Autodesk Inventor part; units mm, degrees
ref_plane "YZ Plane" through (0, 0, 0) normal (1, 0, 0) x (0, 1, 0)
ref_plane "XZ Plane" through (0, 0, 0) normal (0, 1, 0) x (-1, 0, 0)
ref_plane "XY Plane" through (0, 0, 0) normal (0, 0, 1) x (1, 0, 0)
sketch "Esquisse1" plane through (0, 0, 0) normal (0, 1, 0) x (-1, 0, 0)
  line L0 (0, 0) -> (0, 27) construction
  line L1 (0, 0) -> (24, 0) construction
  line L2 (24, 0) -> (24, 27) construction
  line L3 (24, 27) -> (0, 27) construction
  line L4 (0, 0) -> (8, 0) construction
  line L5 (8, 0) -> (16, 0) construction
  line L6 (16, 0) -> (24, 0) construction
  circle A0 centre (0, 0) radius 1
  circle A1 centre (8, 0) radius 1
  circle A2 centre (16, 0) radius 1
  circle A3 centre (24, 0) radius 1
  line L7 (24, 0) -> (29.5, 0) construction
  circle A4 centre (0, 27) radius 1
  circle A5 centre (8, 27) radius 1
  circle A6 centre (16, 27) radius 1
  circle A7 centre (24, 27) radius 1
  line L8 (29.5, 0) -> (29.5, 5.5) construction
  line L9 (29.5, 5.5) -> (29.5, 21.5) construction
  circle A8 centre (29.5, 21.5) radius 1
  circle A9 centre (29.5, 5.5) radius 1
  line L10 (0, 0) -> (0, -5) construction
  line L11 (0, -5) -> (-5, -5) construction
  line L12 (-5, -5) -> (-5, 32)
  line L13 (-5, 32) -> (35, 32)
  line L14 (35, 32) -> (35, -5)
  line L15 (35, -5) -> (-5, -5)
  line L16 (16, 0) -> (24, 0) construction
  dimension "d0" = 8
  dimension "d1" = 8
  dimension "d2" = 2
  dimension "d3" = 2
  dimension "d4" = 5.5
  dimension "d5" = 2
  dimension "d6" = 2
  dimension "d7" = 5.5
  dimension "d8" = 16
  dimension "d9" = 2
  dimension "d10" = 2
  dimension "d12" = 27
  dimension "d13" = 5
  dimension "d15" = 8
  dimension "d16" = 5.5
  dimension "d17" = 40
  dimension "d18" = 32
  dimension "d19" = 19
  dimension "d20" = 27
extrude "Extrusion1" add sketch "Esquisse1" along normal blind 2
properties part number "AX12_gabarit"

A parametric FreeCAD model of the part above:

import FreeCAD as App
import Part
import Sketcher
from FreeCAD import Vector

doc = App.newDocument("Part")
params = doc.addObject("Spreadsheet::Sheet", "Params")
for row, (alias, value) in enumerate([
    ("sketch1_diameter", "2 mm"),
    ("sketch1_width", "40 mm"),
    ("pad1_length", "2 mm"),
], start=1):
    params.set(f"A{row}", alias)
    params.set(f"B{row}", "=" + value)
    params.setAlias(f"B{row}", alias)

body = doc.addObject("PartDesign::Body", "Body")

sketch1 = doc.addObject("Sketcher::SketchObject", "Sketch")
body.addObject(sketch1)
sketch1.AttachmentSupport = (doc.XZ_Plane, [""])
sketch1.MapMode = "FlatFace"
sketch1.addGeometry([
    Part.LineSegment(Vector(5, 32, 0), Vector(5, -5, 0)),
    Part.LineSegment(Vector(5, -5, 0), Vector(-35, -5, 0)),
    Part.LineSegment(Vector(-35, -5, 0), Vector(-35, 32, 0)),
    Part.LineSegment(Vector(-35, 32, 0), Vector(5, 32, 0)),
    Part.Circle(Vector(0, 0, 0), Vector(0, 0, 1), 1),
    Part.Circle(Vector(-8, 0, 0), Vector(0, 0, 1), 1),
    Part.Circle(Vector(-16, 0, 0), Vector(0, 0, 1), 1),
    Part.Circle(Vector(-24, 0, 0), Vector(0, 0, 1), 1),
    Part.Circle(Vector(-29.5, 5.5, 0), Vector(0, 0, 1), 1),
    Part.Circle(Vector(0, 27, 0), Vector(0, 0, 1), 1),
    Part.Circle(Vector(-8, 27, 0), Vector(0, 0, 1), 1),
    Part.Circle(Vector(-29.5, 21.5, 0), Vector(0, 0, 1), 1),
    Part.Circle(Vector(-16, 27, 0), Vector(0, 0, 1), 1),
    Part.Circle(Vector(-24, 27, 0), Vector(0, 0, 1), 1),
], False)
sketch1.addConstraint([
    Sketcher.Constraint("Coincident", 0, 2, 1, 1),
    Sketcher.Constraint("Coincident", 1, 2, 2, 1),
    Sketcher.Constraint("Coincident", 2, 2, 3, 1),
    Sketcher.Constraint("Coincident", 3, 2, 0, 1),
    Sketcher.Constraint("Vertical", 0),
    Sketcher.Constraint("Horizontal", 1),
    Sketcher.Constraint("Vertical", 2),
    Sketcher.Constraint("Horizontal", 3),
    Sketcher.Constraint("Coincident", 4, 3, -1, 1),
    Sketcher.Constraint("Equal", 4, 5),
    Sketcher.Constraint("Equal", 5, 6),
    Sketcher.Constraint("Equal", 6, 7),
    Sketcher.Constraint("Equal", 7, 8),
    Sketcher.Constraint("Equal", 8, 9),
    Sketcher.Constraint("Equal", 9, 10),
    Sketcher.Constraint("Equal", 10, 11),
    Sketcher.Constraint("Equal", 11, 12),
    Sketcher.Constraint("Equal", 12, 13),
    Sketcher.Constraint("PointOnObject", 5, 3, -1),
    Sketcher.Constraint("PointOnObject", 6, 3, -1),
    Sketcher.Constraint("PointOnObject", 7, 3, -1),
    Sketcher.Constraint("PointOnObject", 9, 3, -2),
    Sketcher.Constraint("Horizontal", 9, 3, 10, 3),
    Sketcher.Constraint("Horizontal", 10, 3, 12, 3),
    Sketcher.Constraint("Horizontal", 12, 3, 13, 3),
    Sketcher.Constraint("Vertical", 5, 3, 10, 3),
    Sketcher.Constraint("Vertical", 8, 3, 11, 3),
    Sketcher.Constraint("Vertical", 6, 3, 12, 3),
    Sketcher.Constraint("Vertical", 7, 3, 13, 3),
    Sketcher.Constraint("Diameter", 4, 2.0),
    Sketcher.Constraint("DistanceX", 1, 2, 1, 1, 40.0),
    Sketcher.Constraint("DistanceX", 5, 3, -1, 1, 8.0),
    Sketcher.Constraint("DistanceX", 6, 3, -1, 1, 16.0),
    Sketcher.Constraint("DistanceY", -1, 1, 9, 3, 27.0),
    Sketcher.Constraint("DistanceX", -1, 1, 0, 2, 5.0),
    Sketcher.Constraint("DistanceY", 0, 2, -1, 1, 5.0),
    Sketcher.Constraint("DistanceY", -1, 1, 2, 2, 32.0),
    Sketcher.Constraint("DistanceX", 7, 3, 6, 3, 8.0),
    Sketcher.Constraint("DistanceY", 8, 3, 11, 3, 16.0),
    Sketcher.Constraint("DistanceY", -1, 1, 8, 3, 5.5),
    Sketcher.Constraint("DistanceX", 8, 3, 7, 3, 5.5),
])
sketch1.setExpression("Constraints[29]", "Params.sketch1_diameter")
sketch1.setExpression("Constraints[30]", "Params.sketch1_width")
pad1 = doc.addObject("PartDesign::Pad", "Pad")
body.addObject(pad1)
pad1.Profile = sketch1
pad1.setExpression("Length", "Params.pad1_length")
pad1.Reversed = True

doc.recompute()
